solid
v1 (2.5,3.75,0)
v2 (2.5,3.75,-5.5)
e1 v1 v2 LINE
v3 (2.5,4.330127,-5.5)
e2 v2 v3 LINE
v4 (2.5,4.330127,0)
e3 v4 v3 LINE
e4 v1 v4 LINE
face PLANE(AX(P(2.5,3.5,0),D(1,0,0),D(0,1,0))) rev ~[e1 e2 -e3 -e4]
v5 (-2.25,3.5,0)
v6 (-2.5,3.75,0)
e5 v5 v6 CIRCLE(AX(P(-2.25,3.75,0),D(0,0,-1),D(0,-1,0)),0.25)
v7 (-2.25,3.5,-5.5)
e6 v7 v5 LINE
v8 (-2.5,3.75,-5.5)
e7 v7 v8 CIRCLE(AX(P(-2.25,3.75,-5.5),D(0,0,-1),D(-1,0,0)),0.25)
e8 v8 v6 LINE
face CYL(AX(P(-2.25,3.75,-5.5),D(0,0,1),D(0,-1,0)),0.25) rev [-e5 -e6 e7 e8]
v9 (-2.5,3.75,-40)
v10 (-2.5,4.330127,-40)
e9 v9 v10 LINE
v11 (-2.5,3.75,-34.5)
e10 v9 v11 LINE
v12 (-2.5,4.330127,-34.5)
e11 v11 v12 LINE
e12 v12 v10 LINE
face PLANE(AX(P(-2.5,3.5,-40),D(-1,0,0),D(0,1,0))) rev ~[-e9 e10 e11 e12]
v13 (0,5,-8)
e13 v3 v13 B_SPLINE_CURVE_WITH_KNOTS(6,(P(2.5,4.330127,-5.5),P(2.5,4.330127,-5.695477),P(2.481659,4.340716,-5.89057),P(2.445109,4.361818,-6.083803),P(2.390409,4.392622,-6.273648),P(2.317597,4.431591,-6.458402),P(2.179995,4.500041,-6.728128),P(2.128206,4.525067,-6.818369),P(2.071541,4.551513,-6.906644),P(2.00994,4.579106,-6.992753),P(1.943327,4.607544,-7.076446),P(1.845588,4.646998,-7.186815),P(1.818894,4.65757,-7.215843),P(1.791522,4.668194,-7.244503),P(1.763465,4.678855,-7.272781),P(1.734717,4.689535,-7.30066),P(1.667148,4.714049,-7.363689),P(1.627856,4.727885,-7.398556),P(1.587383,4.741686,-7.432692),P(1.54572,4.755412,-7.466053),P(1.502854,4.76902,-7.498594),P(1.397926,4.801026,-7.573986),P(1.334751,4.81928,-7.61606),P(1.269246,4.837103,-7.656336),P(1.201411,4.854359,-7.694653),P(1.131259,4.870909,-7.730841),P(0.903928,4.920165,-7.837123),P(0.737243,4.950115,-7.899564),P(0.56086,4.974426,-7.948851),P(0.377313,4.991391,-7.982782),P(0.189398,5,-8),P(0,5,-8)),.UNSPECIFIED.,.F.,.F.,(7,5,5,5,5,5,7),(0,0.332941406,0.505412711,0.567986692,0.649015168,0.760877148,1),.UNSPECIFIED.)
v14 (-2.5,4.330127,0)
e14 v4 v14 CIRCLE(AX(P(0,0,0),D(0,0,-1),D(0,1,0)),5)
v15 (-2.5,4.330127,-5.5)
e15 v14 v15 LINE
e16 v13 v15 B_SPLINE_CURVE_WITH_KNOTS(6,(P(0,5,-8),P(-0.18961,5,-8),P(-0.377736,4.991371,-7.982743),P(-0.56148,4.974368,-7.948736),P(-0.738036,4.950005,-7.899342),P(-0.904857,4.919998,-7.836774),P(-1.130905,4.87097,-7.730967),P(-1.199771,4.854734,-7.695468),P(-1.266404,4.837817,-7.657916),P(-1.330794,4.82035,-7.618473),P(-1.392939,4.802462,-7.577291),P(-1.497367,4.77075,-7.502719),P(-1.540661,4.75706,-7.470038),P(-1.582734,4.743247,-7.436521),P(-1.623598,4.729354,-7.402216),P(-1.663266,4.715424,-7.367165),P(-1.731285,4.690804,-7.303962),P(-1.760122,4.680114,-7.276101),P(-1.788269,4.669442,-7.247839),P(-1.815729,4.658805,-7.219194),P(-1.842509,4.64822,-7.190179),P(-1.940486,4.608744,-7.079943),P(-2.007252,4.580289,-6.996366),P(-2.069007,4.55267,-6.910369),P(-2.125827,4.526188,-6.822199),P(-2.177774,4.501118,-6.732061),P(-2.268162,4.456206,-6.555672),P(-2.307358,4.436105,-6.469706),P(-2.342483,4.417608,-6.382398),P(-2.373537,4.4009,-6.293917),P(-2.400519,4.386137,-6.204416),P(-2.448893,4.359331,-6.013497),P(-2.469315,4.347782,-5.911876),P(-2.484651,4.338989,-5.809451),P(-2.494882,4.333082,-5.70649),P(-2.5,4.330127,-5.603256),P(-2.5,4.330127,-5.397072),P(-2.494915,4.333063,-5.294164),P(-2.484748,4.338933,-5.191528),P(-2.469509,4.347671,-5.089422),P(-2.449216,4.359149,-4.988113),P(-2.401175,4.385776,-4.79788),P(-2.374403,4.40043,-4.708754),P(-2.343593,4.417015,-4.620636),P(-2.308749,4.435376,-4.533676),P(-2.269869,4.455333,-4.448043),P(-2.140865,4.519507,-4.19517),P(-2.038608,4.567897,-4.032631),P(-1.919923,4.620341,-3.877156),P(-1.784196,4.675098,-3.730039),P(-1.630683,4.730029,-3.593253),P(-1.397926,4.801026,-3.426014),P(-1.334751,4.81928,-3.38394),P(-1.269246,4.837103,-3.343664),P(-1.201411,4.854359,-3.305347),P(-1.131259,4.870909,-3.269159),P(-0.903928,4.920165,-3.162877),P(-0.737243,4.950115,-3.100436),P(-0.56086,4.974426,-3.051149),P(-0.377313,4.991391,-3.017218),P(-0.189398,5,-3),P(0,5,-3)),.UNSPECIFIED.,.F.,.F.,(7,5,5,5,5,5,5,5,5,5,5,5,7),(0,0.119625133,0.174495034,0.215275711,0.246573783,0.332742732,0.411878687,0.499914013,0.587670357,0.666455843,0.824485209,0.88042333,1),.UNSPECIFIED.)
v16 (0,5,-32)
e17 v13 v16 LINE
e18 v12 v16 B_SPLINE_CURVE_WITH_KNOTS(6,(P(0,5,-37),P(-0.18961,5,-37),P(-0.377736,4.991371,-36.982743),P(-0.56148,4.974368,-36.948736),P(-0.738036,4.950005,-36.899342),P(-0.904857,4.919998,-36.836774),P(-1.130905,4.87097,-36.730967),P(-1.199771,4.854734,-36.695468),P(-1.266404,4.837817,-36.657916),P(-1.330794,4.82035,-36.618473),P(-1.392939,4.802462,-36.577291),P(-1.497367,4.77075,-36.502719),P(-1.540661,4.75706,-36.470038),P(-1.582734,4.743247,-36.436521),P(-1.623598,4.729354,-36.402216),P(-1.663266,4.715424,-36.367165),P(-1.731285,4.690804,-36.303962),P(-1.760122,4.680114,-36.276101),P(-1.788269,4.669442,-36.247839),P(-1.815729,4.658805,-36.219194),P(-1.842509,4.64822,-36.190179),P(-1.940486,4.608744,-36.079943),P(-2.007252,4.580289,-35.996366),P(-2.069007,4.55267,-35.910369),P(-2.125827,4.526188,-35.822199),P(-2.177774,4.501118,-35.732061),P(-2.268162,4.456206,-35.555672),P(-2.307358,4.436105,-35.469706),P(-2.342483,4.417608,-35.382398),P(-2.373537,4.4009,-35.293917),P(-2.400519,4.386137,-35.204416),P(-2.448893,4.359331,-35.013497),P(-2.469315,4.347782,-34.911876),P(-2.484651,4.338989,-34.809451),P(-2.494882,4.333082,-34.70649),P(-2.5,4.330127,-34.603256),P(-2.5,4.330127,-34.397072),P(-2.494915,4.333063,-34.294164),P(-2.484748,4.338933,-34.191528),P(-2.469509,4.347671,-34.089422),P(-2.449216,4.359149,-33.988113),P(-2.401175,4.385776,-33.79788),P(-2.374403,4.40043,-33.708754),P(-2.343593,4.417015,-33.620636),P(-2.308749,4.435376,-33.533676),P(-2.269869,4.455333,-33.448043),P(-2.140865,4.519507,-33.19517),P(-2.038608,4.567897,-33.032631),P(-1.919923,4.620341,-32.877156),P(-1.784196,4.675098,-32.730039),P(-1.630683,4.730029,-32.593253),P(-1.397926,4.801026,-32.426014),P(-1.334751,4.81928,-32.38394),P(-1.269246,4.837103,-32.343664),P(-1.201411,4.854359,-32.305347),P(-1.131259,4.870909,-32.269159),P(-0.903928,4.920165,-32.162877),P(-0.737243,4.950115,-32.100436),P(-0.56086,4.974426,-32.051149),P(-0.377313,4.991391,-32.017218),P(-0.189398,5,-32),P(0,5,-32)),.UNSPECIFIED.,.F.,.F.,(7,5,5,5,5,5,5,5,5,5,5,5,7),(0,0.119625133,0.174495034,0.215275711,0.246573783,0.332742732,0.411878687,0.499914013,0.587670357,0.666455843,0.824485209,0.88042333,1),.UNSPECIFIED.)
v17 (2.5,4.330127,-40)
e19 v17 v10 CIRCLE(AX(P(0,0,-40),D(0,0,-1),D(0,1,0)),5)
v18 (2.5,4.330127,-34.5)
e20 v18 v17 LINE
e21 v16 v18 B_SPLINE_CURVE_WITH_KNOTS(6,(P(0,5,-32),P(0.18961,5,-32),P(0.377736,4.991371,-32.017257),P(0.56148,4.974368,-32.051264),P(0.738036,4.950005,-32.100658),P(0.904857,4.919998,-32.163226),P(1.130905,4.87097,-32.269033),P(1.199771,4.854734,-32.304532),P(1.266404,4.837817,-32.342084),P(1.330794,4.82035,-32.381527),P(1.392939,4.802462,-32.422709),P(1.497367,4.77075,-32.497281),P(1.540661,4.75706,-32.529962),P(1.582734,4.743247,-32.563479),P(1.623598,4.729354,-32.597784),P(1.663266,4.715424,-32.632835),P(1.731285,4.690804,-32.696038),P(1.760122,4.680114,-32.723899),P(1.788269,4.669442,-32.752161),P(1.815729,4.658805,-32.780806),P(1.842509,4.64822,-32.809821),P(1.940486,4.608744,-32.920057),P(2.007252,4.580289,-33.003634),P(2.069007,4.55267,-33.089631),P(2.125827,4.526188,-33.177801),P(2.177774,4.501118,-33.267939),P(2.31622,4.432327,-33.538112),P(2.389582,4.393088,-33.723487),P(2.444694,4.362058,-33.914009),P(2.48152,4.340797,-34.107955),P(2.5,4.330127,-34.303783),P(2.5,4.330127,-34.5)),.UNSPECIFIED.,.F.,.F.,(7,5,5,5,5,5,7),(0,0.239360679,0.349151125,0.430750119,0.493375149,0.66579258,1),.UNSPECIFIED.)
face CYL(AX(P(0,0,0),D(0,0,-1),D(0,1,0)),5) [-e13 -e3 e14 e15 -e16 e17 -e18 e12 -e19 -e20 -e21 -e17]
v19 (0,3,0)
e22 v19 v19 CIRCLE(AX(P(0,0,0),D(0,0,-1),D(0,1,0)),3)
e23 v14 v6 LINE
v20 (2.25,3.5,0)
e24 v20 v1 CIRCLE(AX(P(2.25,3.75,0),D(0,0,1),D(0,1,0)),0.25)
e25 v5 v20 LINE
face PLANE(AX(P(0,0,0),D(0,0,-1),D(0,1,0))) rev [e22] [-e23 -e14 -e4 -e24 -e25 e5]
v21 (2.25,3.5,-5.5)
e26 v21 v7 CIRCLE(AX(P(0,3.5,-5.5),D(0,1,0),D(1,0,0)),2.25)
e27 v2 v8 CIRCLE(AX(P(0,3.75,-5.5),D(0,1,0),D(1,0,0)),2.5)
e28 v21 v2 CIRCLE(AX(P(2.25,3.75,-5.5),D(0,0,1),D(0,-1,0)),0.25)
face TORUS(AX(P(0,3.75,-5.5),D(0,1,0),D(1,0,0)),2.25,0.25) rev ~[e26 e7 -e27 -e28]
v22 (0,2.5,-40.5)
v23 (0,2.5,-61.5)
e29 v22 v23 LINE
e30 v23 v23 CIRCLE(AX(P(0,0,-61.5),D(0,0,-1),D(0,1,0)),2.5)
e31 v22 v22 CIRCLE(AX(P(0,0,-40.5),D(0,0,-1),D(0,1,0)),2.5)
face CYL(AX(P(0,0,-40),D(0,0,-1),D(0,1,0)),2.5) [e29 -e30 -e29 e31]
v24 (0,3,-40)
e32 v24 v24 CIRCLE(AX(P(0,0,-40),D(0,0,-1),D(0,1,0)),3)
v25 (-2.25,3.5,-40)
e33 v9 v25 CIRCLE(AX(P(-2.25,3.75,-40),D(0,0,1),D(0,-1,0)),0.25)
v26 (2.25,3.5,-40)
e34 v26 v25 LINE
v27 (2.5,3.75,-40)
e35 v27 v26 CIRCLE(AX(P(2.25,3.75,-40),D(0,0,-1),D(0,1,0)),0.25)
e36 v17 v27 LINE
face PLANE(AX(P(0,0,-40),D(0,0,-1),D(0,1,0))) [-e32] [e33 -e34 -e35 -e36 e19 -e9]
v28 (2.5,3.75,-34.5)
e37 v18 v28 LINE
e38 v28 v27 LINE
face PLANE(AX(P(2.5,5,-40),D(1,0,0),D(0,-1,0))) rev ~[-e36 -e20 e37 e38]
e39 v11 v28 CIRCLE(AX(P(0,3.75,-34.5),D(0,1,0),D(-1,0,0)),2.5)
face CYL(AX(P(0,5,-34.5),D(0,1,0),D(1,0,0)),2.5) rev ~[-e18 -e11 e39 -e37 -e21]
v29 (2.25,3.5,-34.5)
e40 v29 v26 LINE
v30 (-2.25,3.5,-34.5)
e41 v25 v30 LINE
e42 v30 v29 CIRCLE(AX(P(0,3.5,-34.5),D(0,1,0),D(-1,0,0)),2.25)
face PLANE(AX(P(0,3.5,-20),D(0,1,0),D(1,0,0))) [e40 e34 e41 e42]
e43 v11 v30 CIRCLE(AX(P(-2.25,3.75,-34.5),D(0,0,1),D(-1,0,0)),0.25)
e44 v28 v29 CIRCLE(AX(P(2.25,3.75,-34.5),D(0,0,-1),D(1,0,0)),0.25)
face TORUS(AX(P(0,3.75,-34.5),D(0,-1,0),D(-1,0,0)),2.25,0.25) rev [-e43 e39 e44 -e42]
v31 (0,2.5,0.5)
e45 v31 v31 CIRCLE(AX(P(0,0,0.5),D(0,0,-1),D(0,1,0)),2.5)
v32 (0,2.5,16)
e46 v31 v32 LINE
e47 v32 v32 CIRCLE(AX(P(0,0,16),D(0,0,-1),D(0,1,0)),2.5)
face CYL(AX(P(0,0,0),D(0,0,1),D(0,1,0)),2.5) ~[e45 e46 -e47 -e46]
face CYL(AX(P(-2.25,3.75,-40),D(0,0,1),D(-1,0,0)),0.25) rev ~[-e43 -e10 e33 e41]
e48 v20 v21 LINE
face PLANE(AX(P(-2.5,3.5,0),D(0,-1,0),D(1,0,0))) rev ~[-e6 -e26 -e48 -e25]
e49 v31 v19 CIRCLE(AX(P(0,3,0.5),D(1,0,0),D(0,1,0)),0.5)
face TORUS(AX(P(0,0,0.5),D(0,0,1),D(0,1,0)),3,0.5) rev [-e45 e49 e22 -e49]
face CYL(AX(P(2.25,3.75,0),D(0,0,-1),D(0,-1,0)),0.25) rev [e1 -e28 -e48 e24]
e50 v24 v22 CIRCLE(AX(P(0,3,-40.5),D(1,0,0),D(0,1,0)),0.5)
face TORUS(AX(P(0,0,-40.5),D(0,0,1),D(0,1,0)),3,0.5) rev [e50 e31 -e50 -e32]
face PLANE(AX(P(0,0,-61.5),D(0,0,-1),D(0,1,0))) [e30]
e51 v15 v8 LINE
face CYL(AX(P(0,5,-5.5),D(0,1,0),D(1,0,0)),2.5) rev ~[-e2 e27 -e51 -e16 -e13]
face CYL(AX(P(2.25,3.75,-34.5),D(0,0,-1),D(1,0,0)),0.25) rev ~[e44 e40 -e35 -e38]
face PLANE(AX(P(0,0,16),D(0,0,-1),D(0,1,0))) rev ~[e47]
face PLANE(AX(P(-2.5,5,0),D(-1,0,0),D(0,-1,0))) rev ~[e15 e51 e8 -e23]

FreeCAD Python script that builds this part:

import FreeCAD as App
import Part
import Sketcher

V = App.Vector
Q = App.Units.Quantity


def edges_at(feature, points):
    """Names of the edges that pass closest to the given points."""
    edges = feature.Shape.Edges
    near = lambda p: min(range(len(edges)), key=lambda i: edges[i].distToShape(Part.Vertex(*p))[0])
    return sorted({f"Edge{near(p) + 1}" for p in points})

doc = App.newDocument("Part")
body = doc.addObject("PartDesign::Body", "Body")

sketch1 = doc.addObject("Sketcher::SketchObject", "Sketch")
body.addObject(sketch1)
sketch1.AttachmentSupport = (doc.YZ_Plane, [""])
sketch1.MapMode = "FlatFace"
sketch1.addGeometry(Part.LineSegment(V(0, -61.5, 0), V(2.5, -61.5, 0)), False)
sketch1.addGeometry(Part.LineSegment(V(2.5, -61.5, 0), V(2.5, -40, 0)), False)
sketch1.addGeometry(Part.LineSegment(V(2.5, -40, 0), V(5, -40, 0)), False)
sketch1.addGeometry(Part.LineSegment(V(5, -40, 0), V(5, 0, 0)), False)
sketch1.addGeometry(Part.LineSegment(V(5, 0, 0), V(2.5, 0, 0)), False)
sketch1.addGeometry(Part.LineSegment(V(2.5, 0, 0), V(2.5, 16, 0)), False)
sketch1.addGeometry(Part.LineSegment(V(2.5, 16, 0), V(0, 16, 0)), False)
sketch1.addGeometry(Part.LineSegment(V(0, 16, 0), V(0, -61.5, 0)), False)
sketch1.addConstraint(Sketcher.Constraint("Coincident", 0, 2, 1, 1))
sketch1.addConstraint(Sketcher.Constraint("Coincident", 1, 2, 2, 1))
sketch1.addConstraint(Sketcher.Constraint("Coincident", 2, 2, 3, 1))
sketch1.addConstraint(Sketcher.Constraint("Coincident", 3, 2, 4, 1))
sketch1.addConstraint(Sketcher.Constraint("Coincident", 4, 2, 5, 1))
sketch1.addConstraint(Sketcher.Constraint("Coincident", 5, 2, 6, 1))
sketch1.addConstraint(Sketcher.Constraint("Coincident", 6, 2, 7, 1))
sketch1.addConstraint(Sketcher.Constraint("Coincident", 7, 2, 0, 1))
sketch1.addConstraint(Sketcher.Constraint("Horizontal", 0))
sketch1.addConstraint(Sketcher.Constraint("Vertical", 1))
sketch1.addConstraint(Sketcher.Constraint("Horizontal", 2))
sketch1.addConstraint(Sketcher.Constraint("Vertical", 3))
sketch1.addConstraint(Sketcher.Constraint("Horizontal", 4))
sketch1.addConstraint(Sketcher.Constraint("Vertical", 5))
sketch1.addConstraint(Sketcher.Constraint("Horizontal", 6))
sketch1.addConstraint(Sketcher.Constraint("Vertical", 7))
sketch1.addConstraint(Sketcher.Constraint("PointOnObject", 3, 2, -1))
sketch1.addConstraint(Sketcher.Constraint("PointOnObject", 6, 2, -2))
sketch1.addConstraint(Sketcher.Constraint("Vertical", 1, 2, 4, 2))
sketch1.addConstraint(Sketcher.Constraint("Equal", 0, 2))
sketch1.addConstraint(Sketcher.Constraint("DistanceY", 3, 1, 3, 2, Q("40 mm")))
sketch1.addConstraint(Sketcher.Constraint("DistanceY", 5, 1, 5, 2, Q("16 mm")))
sketch1.addConstraint(Sketcher.Constraint("DistanceX", 0, 1, 0, 2, Q("2.5 mm")))
sketch1.addConstraint(Sketcher.Constraint("DistanceY", 1, 1, 1, 2, Q("21.5 mm")))
revolution = doc.addObject("PartDesign::Revolution", "Revolution")
body.addObject(revolution)
revolution.Profile = sketch1
revolution.ReferenceAxis = (sketch1, ["V_Axis"])
revolution.Angle = 360

sketch2 = doc.addObject("Sketcher::SketchObject", "Sketch001")
body.addObject(sketch2)
sketch2.AttachmentSupport = (doc.XY_Plane, [""])
sketch2.MapMode = "FlatFace"
sketch2.addGeometry(Part.LineSegment(V(2.5, 5, 0), V(-2.5, 5, 0)), False)
sketch2.addGeometry(Part.LineSegment(V(-2.5, 5, 0), V(-2.5, 3.5, 0)), False)
sketch2.addGeometry(Part.LineSegment(V(-2.5, 3.5, 0), V(2.5, 3.5, 0)), False)
sketch2.addGeometry(Part.LineSegment(V(2.5, 3.5, 0), V(2.5, 5, 0)), False)
sketch2.addConstraint(Sketcher.Constraint("Coincident", 0, 2, 1, 1))
sketch2.addConstraint(Sketcher.Constraint("Coincident", 1, 2, 2, 1))
sketch2.addConstraint(Sketcher.Constraint("Coincident", 2, 2, 3, 1))
sketch2.addConstraint(Sketcher.Constraint("Coincident", 3, 2, 0, 1))
sketch2.addConstraint(Sketcher.Constraint("Horizontal", 0))
sketch2.addConstraint(Sketcher.Constraint("Vertical", 1))
sketch2.addConstraint(Sketcher.Constraint("Horizontal", 2))
sketch2.addConstraint(Sketcher.Constraint("Vertical", 3))
sketch2.addConstraint(Sketcher.Constraint("DistanceX", 0, 2, 0, 1, Q("5 mm")))
sketch2.addConstraint(Sketcher.Constraint("DistanceY", 1, 2, 1, 1, Q("1.5 mm")))
sketch2.addConstraint(Sketcher.Constraint("DistanceY", -1, 1, 0, 2, Q("5 mm")))
sketch2.addConstraint(Sketcher.Constraint("DistanceX", 0, 2, -1, 1, Q("2.5 mm")))
pocket1 = doc.addObject("PartDesign::Pocket", "Pocket")
body.addObject(pocket1)
pocket1.Profile = sketch2
pocket1.Length = 5.5

sketch3 = doc.addObject("Sketcher::SketchObject", "Sketch002")
body.addObject(sketch3)
sketch3.AttachmentSupport = (doc.XY_Plane, [""])
sketch3.MapMode = "FlatFace"
sketch3.AttachmentOffset = App.Placement(V(0, 0, -40), App.Rotation())
sketch3.addGeometry(Part.LineSegment(V(-2.5, 5, 0), V(2.5, 5, 0)), False)
sketch3.addGeometry(Part.LineSegment(V(2.5, 5, 0), V(2.5, 3.5, 0)), False)
sketch3.addGeometry(Part.LineSegment(V(2.5, 3.5, 0), V(-2.5, 3.5, 0)), False)
sketch3.addGeometry(Part.LineSegment(V(-2.5, 3.5, 0), V(-2.5, 5, 0)), False)
sketch3.addConstraint(Sketcher.Constraint("Coincident", 0, 2, 1, 1))
sketch3.addConstraint(Sketcher.Constraint("Coincident", 1, 2, 2, 1))
sketch3.addConstraint(Sketcher.Constraint("Coincident", 2, 2, 3, 1))
sketch3.addConstraint(Sketcher.Constraint("Coincident", 3, 2, 0, 1))
sketch3.addConstraint(Sketcher.Constraint("Horizontal", 0))
sketch3.addConstraint(Sketcher.Constraint("Vertical", 1))
sketch3.addConstraint(Sketcher.Constraint("Horizontal", 2))
sketch3.addConstraint(Sketcher.Constraint("Vertical", 3))
sketch3.addConstraint(Sketcher.Constraint("DistanceX", 0, 1, 0, 2, Q("5 mm")))
sketch3.addConstraint(Sketcher.Constraint("DistanceY", 1, 2, 1, 1, Q("1.5 mm")))
sketch3.addConstraint(Sketcher.Constraint("DistanceY", -1, 1, 0, 2, Q("5 mm")))
sketch3.addConstraint(Sketcher.Constraint("DistanceX", -1, 1, 0, 2, Q("2.5 mm")))
pocket2 = doc.addObject("PartDesign::Pocket", "Pocket001")
body.addObject(pocket2)
pocket2.Profile = sketch3
pocket2.Length = 5.5
pocket2.Reversed = True

sketch4 = doc.addObject("Sketcher::SketchObject", "Sketch003")
body.addObject(sketch4)
sketch4.AttachmentSupport = (doc.XZ_Plane, [""])
sketch4.MapMode = "FlatFace"
sketch4.AttachmentOffset = App.Placement(V(0, 0, -5), App.Rotation())
sketch4.addGeometry(Part.Circle(V(0, -5.5, 0), V(0, 0, 1), 2.5), False)
sketch4.addGeometry(Part.Circle(V(0, -34.5, 0), V(0, 0, 1), 2.5), False)
sketch4.addConstraint(Sketcher.Constraint("Equal", 0, 1))
sketch4.addConstraint(Sketcher.Constraint("PointOnObject", 0, 3, -2))
sketch4.addConstraint(Sketcher.Constraint("PointOnObject", 1, 3, -2))
sketch4.addConstraint(Sketcher.Constraint("Diameter", 0, Q("5 mm")))
sketch4.addConstraint(Sketcher.Constraint("DistanceY", 1, 3, 0, 3, Q("29 mm")))
sketch4.addConstraint(Sketcher.Constraint("DistanceY", 0, 3, -1, 1, Q("5.5 mm")))
pocket3 = doc.addObject("PartDesign::Pocket", "Pocket002")
body.addObject(pocket3)
pocket3.Profile = sketch4
pocket3.Length = 1.5
pocket3.Reversed = True
doc.recompute()

fillet = doc.addObject("PartDesign::Fillet", "Fillet")
body.addObject(fillet)
fillet.Base = (pocket3, edges_at(pocket3, [(0, -2.5, 0), (0, -2.5, -40)]))
fillet.Radius = 0.5
doc.recompute()

fillet2 = doc.addObject("PartDesign::Fillet", "Fillet001")
body.addObject(fillet2)
fillet2.Base = (fillet, edges_at(fillet, [
    (0, 3.5, -8),
    (2.5, 3.5, -2.75),
    (-2.5, 3.5, -2.75),
    (0, 3.5, -32),
    (2.5, 3.5, -37.25),
    (-2.5, 3.5, -37.25),
]))
fillet2.Radius = 0.25

doc.recompute()
